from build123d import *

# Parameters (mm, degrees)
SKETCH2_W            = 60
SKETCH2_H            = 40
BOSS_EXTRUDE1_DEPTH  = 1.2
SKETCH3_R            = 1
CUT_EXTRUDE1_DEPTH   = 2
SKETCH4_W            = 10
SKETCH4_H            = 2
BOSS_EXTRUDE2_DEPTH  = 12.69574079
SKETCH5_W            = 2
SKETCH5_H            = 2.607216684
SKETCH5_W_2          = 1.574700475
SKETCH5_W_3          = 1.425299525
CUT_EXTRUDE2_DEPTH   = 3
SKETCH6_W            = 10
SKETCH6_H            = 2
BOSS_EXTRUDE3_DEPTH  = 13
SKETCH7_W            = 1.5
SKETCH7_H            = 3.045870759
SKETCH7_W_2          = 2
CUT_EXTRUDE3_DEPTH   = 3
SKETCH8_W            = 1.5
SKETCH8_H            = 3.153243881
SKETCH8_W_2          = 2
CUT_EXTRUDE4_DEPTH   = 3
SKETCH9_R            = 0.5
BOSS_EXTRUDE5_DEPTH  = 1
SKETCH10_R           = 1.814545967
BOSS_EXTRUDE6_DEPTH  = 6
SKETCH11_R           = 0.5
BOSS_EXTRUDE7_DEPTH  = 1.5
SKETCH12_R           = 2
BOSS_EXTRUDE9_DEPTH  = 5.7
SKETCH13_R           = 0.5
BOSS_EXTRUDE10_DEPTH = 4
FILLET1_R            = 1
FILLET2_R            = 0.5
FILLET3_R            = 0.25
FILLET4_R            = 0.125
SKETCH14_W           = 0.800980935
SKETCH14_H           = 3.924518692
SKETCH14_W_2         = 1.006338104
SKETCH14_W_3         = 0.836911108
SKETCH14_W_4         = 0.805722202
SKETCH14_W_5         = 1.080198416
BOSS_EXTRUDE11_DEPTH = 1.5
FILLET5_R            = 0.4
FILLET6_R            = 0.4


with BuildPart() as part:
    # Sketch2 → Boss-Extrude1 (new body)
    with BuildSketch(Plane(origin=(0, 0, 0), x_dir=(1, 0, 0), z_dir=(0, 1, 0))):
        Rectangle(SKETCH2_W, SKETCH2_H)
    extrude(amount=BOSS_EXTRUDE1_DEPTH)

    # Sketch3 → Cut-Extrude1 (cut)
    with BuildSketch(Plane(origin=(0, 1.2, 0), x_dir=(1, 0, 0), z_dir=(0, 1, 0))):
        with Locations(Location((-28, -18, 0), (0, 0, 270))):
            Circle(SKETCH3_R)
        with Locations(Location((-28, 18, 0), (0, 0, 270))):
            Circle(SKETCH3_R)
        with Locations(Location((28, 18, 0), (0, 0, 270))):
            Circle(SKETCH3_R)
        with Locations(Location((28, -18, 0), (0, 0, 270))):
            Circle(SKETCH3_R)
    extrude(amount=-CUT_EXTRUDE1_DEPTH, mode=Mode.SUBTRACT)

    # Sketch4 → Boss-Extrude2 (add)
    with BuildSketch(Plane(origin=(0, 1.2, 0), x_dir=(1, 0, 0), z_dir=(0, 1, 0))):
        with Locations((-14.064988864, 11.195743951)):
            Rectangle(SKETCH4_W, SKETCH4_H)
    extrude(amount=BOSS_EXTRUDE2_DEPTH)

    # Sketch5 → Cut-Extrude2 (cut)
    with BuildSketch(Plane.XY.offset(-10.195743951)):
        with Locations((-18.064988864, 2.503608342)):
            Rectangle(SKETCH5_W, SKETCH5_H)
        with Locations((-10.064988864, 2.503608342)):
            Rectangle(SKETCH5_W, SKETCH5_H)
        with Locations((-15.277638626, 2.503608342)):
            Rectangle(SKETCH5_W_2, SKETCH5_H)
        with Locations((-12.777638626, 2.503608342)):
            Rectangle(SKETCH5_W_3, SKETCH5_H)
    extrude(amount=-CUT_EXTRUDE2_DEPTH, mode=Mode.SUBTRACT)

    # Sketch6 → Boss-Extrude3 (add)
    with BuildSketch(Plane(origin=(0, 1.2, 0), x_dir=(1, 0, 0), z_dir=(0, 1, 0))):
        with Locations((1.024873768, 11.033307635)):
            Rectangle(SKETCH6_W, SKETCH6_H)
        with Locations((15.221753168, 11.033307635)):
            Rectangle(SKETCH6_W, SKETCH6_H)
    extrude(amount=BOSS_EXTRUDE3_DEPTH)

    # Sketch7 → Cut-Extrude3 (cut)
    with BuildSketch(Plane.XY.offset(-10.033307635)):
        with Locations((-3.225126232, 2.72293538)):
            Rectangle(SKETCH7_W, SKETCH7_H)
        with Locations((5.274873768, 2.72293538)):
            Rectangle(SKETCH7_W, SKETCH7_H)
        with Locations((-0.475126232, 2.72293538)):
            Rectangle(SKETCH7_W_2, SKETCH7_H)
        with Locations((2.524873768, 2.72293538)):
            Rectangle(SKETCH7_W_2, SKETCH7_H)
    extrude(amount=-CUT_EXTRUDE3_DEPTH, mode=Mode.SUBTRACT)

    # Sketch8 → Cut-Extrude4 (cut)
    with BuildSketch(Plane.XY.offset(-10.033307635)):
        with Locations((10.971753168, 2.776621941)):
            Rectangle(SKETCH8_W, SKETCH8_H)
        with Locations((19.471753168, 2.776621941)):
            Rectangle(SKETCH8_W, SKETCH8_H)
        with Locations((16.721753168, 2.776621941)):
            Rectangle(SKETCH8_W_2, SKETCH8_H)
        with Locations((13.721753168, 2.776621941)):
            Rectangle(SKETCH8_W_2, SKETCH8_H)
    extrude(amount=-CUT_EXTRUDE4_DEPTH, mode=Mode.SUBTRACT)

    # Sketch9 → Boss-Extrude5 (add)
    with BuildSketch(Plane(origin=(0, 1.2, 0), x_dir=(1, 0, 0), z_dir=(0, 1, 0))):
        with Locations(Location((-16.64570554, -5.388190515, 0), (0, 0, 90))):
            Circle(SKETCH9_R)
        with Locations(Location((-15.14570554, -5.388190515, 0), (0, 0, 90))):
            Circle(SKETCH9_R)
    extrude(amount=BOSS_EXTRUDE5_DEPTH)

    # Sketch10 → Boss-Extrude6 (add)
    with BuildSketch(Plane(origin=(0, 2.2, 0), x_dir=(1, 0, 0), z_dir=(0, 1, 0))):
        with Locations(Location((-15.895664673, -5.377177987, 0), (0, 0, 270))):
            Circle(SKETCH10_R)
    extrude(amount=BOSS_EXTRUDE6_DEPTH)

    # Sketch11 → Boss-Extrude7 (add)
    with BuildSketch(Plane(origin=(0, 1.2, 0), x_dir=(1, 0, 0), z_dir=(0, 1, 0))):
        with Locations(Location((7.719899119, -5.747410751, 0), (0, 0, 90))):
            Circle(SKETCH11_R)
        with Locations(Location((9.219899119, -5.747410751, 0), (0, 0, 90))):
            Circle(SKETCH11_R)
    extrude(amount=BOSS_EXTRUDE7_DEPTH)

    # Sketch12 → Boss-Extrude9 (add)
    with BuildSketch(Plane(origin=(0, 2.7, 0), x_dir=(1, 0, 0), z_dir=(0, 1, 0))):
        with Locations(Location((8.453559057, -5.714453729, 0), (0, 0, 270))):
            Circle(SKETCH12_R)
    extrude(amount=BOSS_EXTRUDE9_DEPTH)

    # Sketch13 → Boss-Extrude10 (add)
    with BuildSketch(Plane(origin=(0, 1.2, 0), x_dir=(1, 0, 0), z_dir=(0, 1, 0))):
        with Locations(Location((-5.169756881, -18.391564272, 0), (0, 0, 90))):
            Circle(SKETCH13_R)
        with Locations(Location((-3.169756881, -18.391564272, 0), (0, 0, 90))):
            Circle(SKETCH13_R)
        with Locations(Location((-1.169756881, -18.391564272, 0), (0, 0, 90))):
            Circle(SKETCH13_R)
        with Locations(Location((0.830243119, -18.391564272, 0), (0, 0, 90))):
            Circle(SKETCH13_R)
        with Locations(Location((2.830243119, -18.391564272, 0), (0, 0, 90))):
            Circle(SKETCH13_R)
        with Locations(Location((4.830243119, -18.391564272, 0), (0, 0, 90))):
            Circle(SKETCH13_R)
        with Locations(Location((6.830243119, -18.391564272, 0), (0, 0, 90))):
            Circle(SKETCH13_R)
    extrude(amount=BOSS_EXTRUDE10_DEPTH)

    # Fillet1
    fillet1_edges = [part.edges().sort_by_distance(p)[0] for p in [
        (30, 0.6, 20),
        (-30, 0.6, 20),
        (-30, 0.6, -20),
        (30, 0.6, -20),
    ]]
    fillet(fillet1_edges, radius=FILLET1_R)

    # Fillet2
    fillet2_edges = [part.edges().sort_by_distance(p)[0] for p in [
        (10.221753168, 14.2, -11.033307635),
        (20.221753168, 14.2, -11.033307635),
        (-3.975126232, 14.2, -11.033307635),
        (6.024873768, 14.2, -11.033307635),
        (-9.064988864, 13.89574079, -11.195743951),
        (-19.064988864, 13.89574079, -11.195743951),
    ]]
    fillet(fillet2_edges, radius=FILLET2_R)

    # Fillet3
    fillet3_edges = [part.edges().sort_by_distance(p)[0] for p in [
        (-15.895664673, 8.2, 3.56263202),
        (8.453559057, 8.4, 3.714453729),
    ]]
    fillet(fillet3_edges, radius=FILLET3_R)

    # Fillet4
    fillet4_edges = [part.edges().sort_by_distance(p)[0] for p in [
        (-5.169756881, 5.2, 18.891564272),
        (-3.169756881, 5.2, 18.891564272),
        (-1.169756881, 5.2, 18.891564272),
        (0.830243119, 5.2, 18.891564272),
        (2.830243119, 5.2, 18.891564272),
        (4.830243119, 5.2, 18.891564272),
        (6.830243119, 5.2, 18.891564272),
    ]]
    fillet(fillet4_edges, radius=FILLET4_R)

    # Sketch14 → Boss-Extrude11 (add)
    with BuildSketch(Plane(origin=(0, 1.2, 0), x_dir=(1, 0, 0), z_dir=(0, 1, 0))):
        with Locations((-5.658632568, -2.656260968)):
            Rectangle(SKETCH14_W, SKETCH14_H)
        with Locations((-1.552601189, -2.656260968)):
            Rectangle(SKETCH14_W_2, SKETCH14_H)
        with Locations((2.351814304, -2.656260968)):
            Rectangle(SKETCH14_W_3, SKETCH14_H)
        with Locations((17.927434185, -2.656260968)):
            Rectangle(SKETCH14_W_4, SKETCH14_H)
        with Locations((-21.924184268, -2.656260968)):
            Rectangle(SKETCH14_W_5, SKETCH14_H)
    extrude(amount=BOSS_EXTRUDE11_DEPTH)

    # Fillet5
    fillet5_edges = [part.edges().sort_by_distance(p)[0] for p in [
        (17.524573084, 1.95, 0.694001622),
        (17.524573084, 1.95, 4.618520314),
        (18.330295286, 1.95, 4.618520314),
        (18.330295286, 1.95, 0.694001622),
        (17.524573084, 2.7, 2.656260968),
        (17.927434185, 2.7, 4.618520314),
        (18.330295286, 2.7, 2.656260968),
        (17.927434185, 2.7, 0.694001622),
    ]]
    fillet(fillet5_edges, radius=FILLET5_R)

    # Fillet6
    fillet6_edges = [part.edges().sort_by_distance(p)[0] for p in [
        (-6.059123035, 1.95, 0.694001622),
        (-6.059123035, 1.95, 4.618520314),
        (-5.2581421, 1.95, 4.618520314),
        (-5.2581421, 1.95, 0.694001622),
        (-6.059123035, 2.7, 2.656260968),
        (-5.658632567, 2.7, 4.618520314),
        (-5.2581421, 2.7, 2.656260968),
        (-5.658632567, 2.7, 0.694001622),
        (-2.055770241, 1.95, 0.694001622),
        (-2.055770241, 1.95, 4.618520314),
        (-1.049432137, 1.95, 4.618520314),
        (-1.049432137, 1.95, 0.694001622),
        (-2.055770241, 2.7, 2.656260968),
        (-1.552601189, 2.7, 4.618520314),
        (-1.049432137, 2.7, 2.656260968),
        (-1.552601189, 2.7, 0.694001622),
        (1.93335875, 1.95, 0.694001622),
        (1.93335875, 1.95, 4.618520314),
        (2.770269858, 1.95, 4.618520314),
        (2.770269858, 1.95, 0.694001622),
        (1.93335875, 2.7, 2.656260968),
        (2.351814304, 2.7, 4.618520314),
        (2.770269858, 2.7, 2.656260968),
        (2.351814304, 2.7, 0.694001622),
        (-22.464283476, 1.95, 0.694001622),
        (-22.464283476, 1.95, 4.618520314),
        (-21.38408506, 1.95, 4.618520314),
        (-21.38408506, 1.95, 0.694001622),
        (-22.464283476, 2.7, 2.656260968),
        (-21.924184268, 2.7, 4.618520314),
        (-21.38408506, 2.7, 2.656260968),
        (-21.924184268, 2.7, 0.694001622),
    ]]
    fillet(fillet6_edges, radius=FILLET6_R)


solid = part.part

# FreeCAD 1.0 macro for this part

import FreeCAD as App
import Part
import Sketcher
from FreeCAD import Vector


def edges_at(feature, points):
    """Names of the edges that pass closest to the given points."""
    edges = feature.Shape.Edges
    near = lambda p: min(range(len(edges)), key=lambda i: edges[i].distToShape(Part.Vertex(*p))[0])
    return sorted({f"Edge{near(p) + 1}" for p in points})

doc = App.newDocument("Part")
body = doc.addObject("PartDesign::Body", "Body")

sketch1 = body.newObject("Sketcher::SketchObject", "Sketch")
sketch1.AttachmentSupport = (doc.getObject("XZ_Plane"), [""])
sketch1.MapMode = "FlatFace"
sketch1.addGeometry(Part.LineSegment(Vector(-30, -20, 0), Vector(-30, 20, 0)), False)
sketch1.addGeometry(Part.LineSegment(Vector(-30, 20, 0), Vector(30, 20, 0)), False)
sketch1.addGeometry(Part.LineSegment(Vector(30, 20, 0), Vector(30, -20, 0)), False)
sketch1.addGeometry(Part.LineSegment(Vector(30, -20, 0), Vector(-30, -20, 0)), False)
sketch1.addConstraint(Sketcher.Constraint("Coincident", 0, 2, 1, 1))
sketch1.addConstraint(Sketcher.Constraint("Coincident", 1, 2, 2, 1))
sketch1.addConstraint(Sketcher.Constraint("Coincident", 2, 2, 3, 1))
sketch1.addConstraint(Sketcher.Constraint("Coincident", 3, 2, 0, 1))
sketch1.addConstraint(Sketcher.Constraint("Vertical", 0))
sketch1.addConstraint(Sketcher.Constraint("Horizontal", 1))
sketch1.addConstraint(Sketcher.Constraint("Vertical", 2))
sketch1.addConstraint(Sketcher.Constraint("Horizontal", 3))
sketch1.addConstraint(Sketcher.Constraint("Symmetric", 0, 2, 2, 2, -1, 1))
sketch1.addConstraint(Sketcher.Constraint("DistanceX", 1, 1, 1, 2, 60.0))
sketch1.addConstraint(Sketcher.Constraint("DistanceY", 0, 1, 0, 2, 40.0))
pad1 = body.newObject("PartDesign::Pad", "Pad")
pad1.Profile = sketch1
pad1.Length = 1.2
pad1.Reversed = True

sketch2 = body.newObject("Sketcher::SketchObject", "Sketch001")
sketch2.AttachmentSupport = (doc.getObject("XZ_Plane"), [""])
sketch2.MapMode = "FlatFace"
sketch2.AttachmentOffset = App.Placement(Vector(0, 0, -1.2), App.Rotation())
sketch2.addGeometry(Part.Circle(Vector(-28, 18, 0), Vector(0, 0, 1), 1), False)
sketch2.addGeometry(Part.Circle(Vector(-28, -18, 0), Vector(0, 0, 1), 1), False)
sketch2.addGeometry(Part.Circle(Vector(28, -18, 0), Vector(0, 0, 1), 1), False)
sketch2.addGeometry(Part.Circle(Vector(28, 18, 0), Vector(0, 0, 1), 1), False)
sketch2.addConstraint(Sketcher.Constraint("Equal", 0, 1))
sketch2.addConstraint(Sketcher.Constraint("Equal", 1, 2))
sketch2.addConstraint(Sketcher.Constraint("Equal", 2, 3))
sketch2.addConstraint(Sketcher.Constraint("Symmetric", 0, 3, 2, 3, -1, 1))
sketch2.addConstraint(Sketcher.Constraint("Symmetric", 1, 3, 3, 3, -1, 1))
sketch2.addConstraint(Sketcher.Constraint("Symmetric", 1, 3, 2, 3, -2))
sketch2.addConstraint(Sketcher.Constraint("Diameter", 0, 2.0))
sketch2.addConstraint(Sketcher.Constraint("DistanceX", 0, 3, -1, 1, 28.0))
sketch2.addConstraint(Sketcher.Constraint("DistanceY", -1, 1, 0, 3, 18.0))
pocket1 = body.newObject("PartDesign::Pocket", "Pocket")
pocket1.Profile = sketch2
pocket1.Length = 2
pocket1.Reversed = True

sketch3 = body.newObject("Sketcher::SketchObject", "Sketch002")
sketch3.AttachmentSupport = (doc.getObject("XZ_Plane"), [""])
sketch3.MapMode = "FlatFace"
sketch3.AttachmentOffset = App.Placement(Vector(0, 0, -1.2), App.Rotation())
sketch3.addGeometry(Part.LineSegment(Vector(-19.064989, -12.195744, 0), Vector(-19.064989, -10.195744, 0)), False)
sketch3.addGeometry(Part.LineSegment(Vector(-19.064989, -10.195744, 0), Vector(-9.064989, -10.195744, 0)), False)
sketch3.addGeometry(Part.LineSegment(Vector(-9.064989, -10.195744, 0), Vector(-9.064989, -12.195744, 0)), False)
sketch3.addGeometry(Part.LineSegment(Vector(-9.064989, -12.195744, 0), Vector(-19.064989, -12.195744, 0)), False)
sketch3.addConstraint(Sketcher.Constraint("Coincident", 0, 2, 1, 1))
sketch3.addConstraint(Sketcher.Constraint("Coincident", 1, 2, 2, 1))
sketch3.addConstraint(Sketcher.Constraint("Coincident", 2, 2, 3, 1))
sketch3.addConstraint(Sketcher.Constraint("Coincident", 3, 2, 0, 1))
sketch3.addConstraint(Sketcher.Constraint("Vertical", 0))
sketch3.addConstraint(Sketcher.Constraint("Horizontal", 1))
sketch3.addConstraint(Sketcher.Constraint("Vertical", 2))
sketch3.addConstraint(Sketcher.Constraint("Horizontal", 3))
sketch3.addConstraint(Sketcher.Constraint("DistanceX", 1, 1, 1, 2, 10.0))
sketch3.addConstraint(Sketcher.Constraint("DistanceY", 0, 1, 0, 2, 2.0))
sketch3.addConstraint(Sketcher.Constraint("DistanceX", 0, 2, -1, 1, 19.064989))
sketch3.addConstraint(Sketcher.Constraint("DistanceY", 0, 2, -1, 1, 10.195744))
pad2 = body.newObject("PartDesign::Pad", "Pad001")
pad2.Profile = sketch3
pad2.Length = 12.695741
pad2.Reversed = True

sketch4 = body.newObject("Sketcher::SketchObject", "Sketch003")
sketch4.AttachmentSupport = (doc.getObject("XY_Plane"), [""])
sketch4.MapMode = "FlatFace"
sketch4.AttachmentOffset = App.Placement(Vector(0, 0, -10.195744), App.Rotation())
sketch4.addGeometry(Part.LineSegment(Vector(-19.064989, 3.807217, 0), Vector(-19.064989, 1.2, 0)), False)
sketch4.addGeometry(Part.LineSegment(Vector(-19.064989, 1.2, 0), Vector(-17.064989, 1.2, 0)), False)
sketch4.addGeometry(Part.LineSegment(Vector(-17.064989, 1.2, 0), Vector(-17.064989, 3.807217, 0)), False)
sketch4.addGeometry(Part.LineSegment(Vector(-17.064989, 3.807217, 0), Vector(-19.064989, 3.807217, 0)), False)
sketch4.addGeometry(Part.LineSegment(Vector(-11.064989, 3.807217, 0), Vector(-11.064989, 1.2, 0)), False)
sketch4.addGeometry(Part.LineSegment(Vector(-11.064989, 1.2, 0), Vector(-9.064989, 1.2, 0)), False)
sketch4.addGeometry(Part.LineSegment(Vector(-9.064989, 1.2, 0), Vector(-9.064989, 3.807217, 0)), False)
sketch4.addGeometry(Part.LineSegment(Vector(-9.064989, 3.807217, 0), Vector(-11.064989, 3.807217, 0)), False)
sketch4.addGeometry(Part.LineSegment(Vector(-16.064989, 3.807217, 0), Vector(-16.064989, 1.2, 0)), False)
sketch4.addGeometry(Part.LineSegment(Vector(-16.064989, 1.2, 0), Vector(-14.490288, 1.2, 0)), False)
sketch4.addGeometry(Part.LineSegment(Vector(-14.490288, 1.2, 0), Vector(-14.490288, 3.807217, 0)), False)
sketch4.addGeometry(Part.LineSegment(Vector(-14.490288, 3.807217, 0), Vector(-16.064989, 3.807217, 0)), False)
sketch4.addGeometry(Part.LineSegment(Vector(-13.490288, 3.807217, 0), Vector(-13.490288, 1.2, 0)), False)
sketch4.addGeometry(Part.LineSegment(Vector(-13.490288, 1.2, 0), Vector(-12.064989, 1.2, 0)), False)
sketch4.addGeometry(Part.LineSegment(Vector(-12.064989, 1.2, 0), Vector(-12.064989, 3.807217, 0)), False)
sketch4.addGeometry(Part.LineSegment(Vector(-12.064989, 3.807217, 0), Vector(-13.490288, 3.807217, 0)), False)
sketch4.addConstraint(Sketcher.Constraint("Coincident", 0, 2, 1, 1))
sketch4.addConstraint(Sketcher.Constraint("Coincident", 1, 2, 2, 1))
sketch4.addConstraint(Sketcher.Constraint("Coincident", 2, 2, 3, 1))
sketch4.addConstraint(Sketcher.Constraint("Coincident", 3, 2, 0, 1))
sketch4.addConstraint(Sketcher.Constraint("Coincident", 4, 2, 5, 1))
sketch4.addConstraint(Sketcher.Constraint("Coincident", 5, 2, 6, 1))
sketch4.addConstraint(Sketcher.Constraint("Coincident", 6, 2, 7, 1))
sketch4.addConstraint(Sketcher.Constraint("Coincident", 7, 2, 4, 1))
sketch4.addConstraint(Sketcher.Constraint("Coincident", 8, 2, 9, 1))
sketch4.addConstraint(Sketcher.Constraint("Coincident", 9, 2, 10, 1))
sketch4.addConstraint(Sketcher.Constraint("Coincident", 10, 2, 11, 1))
sketch4.addConstraint(Sketcher.Constraint("Coincident", 11, 2, 8, 1))
sketch4.addConstraint(Sketcher.Constraint("Coincident", 12, 2, 13, 1))
sketch4.addConstraint(Sketcher.Constraint("Coincident", 13, 2, 14, 1))
sketch4.addConstraint(Sketcher.Constraint("Coincident", 14, 2, 15, 1))
sketch4.addConstraint(Sketcher.Constraint("Coincident", 15, 2, 12, 1))
sketch4.addConstraint(Sketcher.Constraint("Vertical", 0))
sketch4.addConstraint(Sketcher.Constraint("Horizontal", 1))
sketch4.addConstraint(Sketcher.Constraint("Vertical", 2))
sketch4.addConstraint(Sketcher.Constraint("Horizontal", 3))
sketch4.addConstraint(Sketcher.Constraint("Vertical", 4))
sketch4.addConstraint(Sketcher.Constraint("Horizontal", 5))
sketch4.addConstraint(Sketcher.Constraint("Vertical", 6))
sketch4.addConstraint(Sketcher.Constraint("Horizontal", 7))
sketch4.addConstraint(Sketcher.Constraint("Vertical", 8))
sketch4.addConstraint(Sketcher.Constraint("Horizontal", 9))
sketch4.addConstraint(Sketcher.Constraint("Vertical", 10))
sketch4.addConstraint(Sketcher.Constraint("Horizontal", 11))
sketch4.addConstraint(Sketcher.Constraint("Vertical", 12))
sketch4.addConstraint(Sketcher.Constraint("Horizontal", 13))
sketch4.addConstraint(Sketcher.Constraint("Vertical", 14))
sketch4.addConstraint(Sketcher.Constraint("Horizontal", 15))
sketch4.addConstraint(Sketcher.Constraint("Horizontal", 1, 2, 4, 2))
sketch4.addConstraint(Sketcher.Constraint("Horizontal", 3, 2, 6, 2))
sketch4.addConstraint(Sketcher.Constraint("Horizontal", 5, 2, 8, 2))
sketch4.addConstraint(Sketcher.Constraint("Horizontal", 7, 2, 10, 2))
sketch4.addConstraint(Sketcher.Constraint("Horizontal", 9, 2, 12, 2))
sketch4.addConstraint(Sketcher.Constraint("Horizontal", 11, 2, 14, 2))
sketch4.addConstraint(Sketcher.Constraint("Equal", 3, 5))
sketch4.addConstraint(Sketcher.Constraint("DistanceX", 1, 1, 1, 2, 2.0))
sketch4.addConstraint(Sketcher.Constraint("DistanceX", 1, 2, 4, 2, 6.0))
sketch4.addConstraint(Sketcher.Constraint("DistanceX", 1, 2, 8, 2, 1.0))
sketch4.addConstraint(Sketcher.Constraint("DistanceX", 9, 2, 12, 2, 1.0))
sketch4.addConstraint(Sketcher.Constraint("DistanceX", 13, 2, 4, 2, 1.0))
sketch4.addConstraint(Sketcher.Constraint("DistanceY", -1, 1, 0, 2, 1.2))
sketch4.addConstraint(Sketcher.Constraint("DistanceX", 9, 1, 9, 2, 1.5747))
sketch4.addConstraint(Sketcher.Constraint("DistanceY", 0, 2, 0, 1, 2.607217))
sketch4.addConstraint(Sketcher.Constraint("DistanceX", 0, 2, -1, 1, 19.064989))
pocket2 = body.newObject("PartDesign::Pocket", "Pocket001")
pocket2.Profile = sketch4
pocket2.Length = 3

sketch5 = body.newObject("Sketcher::SketchObject", "Sketch004")
sketch5.AttachmentSupport = (doc.getObject("XZ_Plane"), [""])
sketch5.MapMode = "FlatFace"
sketch5.AttachmentOffset = App.Placement(Vector(0, 0, -1.2), App.Rotation())
sketch5.addGeometry(Part.LineSegment(Vector(-3.975126, -12.033308, 0), Vector(-3.975126, -10.033308, 0)), False)
sketch5.addGeometry(Part.LineSegment(Vector(-3.975126, -10.033308, 0), Vector(6.024874, -10.033308, 0)), False)
sketch5.addGeometry(Part.LineSegment(Vector(6.024874, -10.033308, 0), Vector(6.024874, -12.033308, 0)), False)
sketch5.addGeometry(Part.LineSegment(Vector(6.024874, -12.033308, 0), Vector(-3.975126, -12.033308, 0)), False)
sketch5.addGeometry(Part.LineSegment(Vector(10.221753, -12.033308, 0), Vector(10.221753, -10.033308, 0)), False)
sketch5.addGeometry(Part.LineSegment(Vector(10.221753, -10.033308, 0), Vector(20.221753, -10.033308, 0)), False)
sketch5.addGeometry(Part.LineSegment(Vector(20.221753, -10.033308, 0), Vector(20.221753, -12.033308, 0)), False)
sketch5.addGeometry(Part.LineSegment(Vector(20.221753, -12.033308, 0), Vector(10.221753, -12.033308, 0)), False)
sketch5.addConstraint(Sketcher.Constraint("Coincident", 0, 2, 1, 1))
sketch5.addConstraint(Sketcher.Constraint("Coincident", 1, 2, 2, 1))
sketch5.addConstraint(Sketcher.Constraint("Coincident", 2, 2, 3, 1))
sketch5.addConstraint(Sketcher.Constraint("Coincident", 3, 2, 0, 1))
sketch5.addConstraint(Sketcher.Constraint("Coincident", 4, 2, 5, 1))
sketch5.addConstraint(Sketcher.Constraint("Coincident", 5, 2, 6, 1))
sketch5.addConstraint(Sketcher.Constraint("Coincident", 6, 2, 7, 1))
sketch5.addConstraint(Sketcher.Constraint("Coincident", 7, 2, 4, 1))
sketch5.addConstraint(Sketcher.Constraint("Vertical", 0))
sketch5.addConstraint(Sketcher.Constraint("Horizontal", 1))
sketch5.addConstraint(Sketcher.Constraint("Vertical", 2))
sketch5.addConstraint(Sketcher.Constraint("Horizontal", 3))
sketch5.addConstraint(Sketcher.Constraint("Vertical", 4))
sketch5.addConstraint(Sketcher.Constraint("Horizontal", 5))
sketch5.addConstraint(Sketcher.Constraint("Vertical", 6))
sketch5.addConstraint(Sketcher.Constraint("Horizontal", 7))
sketch5.addConstraint(Sketcher.Constraint("Horizontal", 1, 2, 4, 2))
sketch5.addConstraint(Sketcher.Constraint("Horizontal", 3, 2, 6, 2))
sketch5.addConstraint(Sketcher.Constraint("Equal", 3, 5))
sketch5.addConstraint(Sketcher.Constraint("DistanceX", 1, 1, 1, 2, 10.0))
sketch5.addConstraint(Sketcher.Constraint("DistanceY", 0, 1, 0, 2, 2.0))
sketch5.addConstraint(Sketcher.Constraint("DistanceX", 1, 2, 4, 2, 4.196879))
sketch5.addConstraint(Sketcher.Constraint("DistanceX", 0, 2, -1, 1, 3.975126))
sketch5.addConstraint(Sketcher.Constraint("DistanceY", 0, 2, -1, 1, 10.033308))
pad3 = body.newObject("PartDesign::Pad", "Pad002")
pad3.Profile = sketch5
pad3.Length = 13
pad3.Reversed = True

sketch6 = body.newObject("Sketcher::SketchObject", "Sketch005")
sketch6.AttachmentSupport = (doc.getObject("XY_Plane"), [""])
sketch6.MapMode = "FlatFace"
sketch6.AttachmentOffset = App.Placement(Vector(0, 0, -10.033308), App.Rotation())
sketch6.addGeometry(Part.LineSegment(Vector(-3.975126, 4.245871, 0), Vector(-3.975126, 1.2, 0)), False)
sketch6.addGeometry(Part.LineSegment(Vector(-3.975126, 1.2, 0), Vector(-2.475126, 1.2, 0)), False)
sketch6.addGeometry(Part.LineSegment(Vector(-2.475126, 1.2, 0), Vector(-2.475126, 4.245871, 0)), False)
sketch6.addGeometry(Part.LineSegment(Vector(-2.475126, 4.245871, 0), Vector(-3.975126, 4.245871, 0)), False)
sketch6.addGeometry(Part.LineSegment(Vector(4.524874, 4.245871, 0), Vector(4.524874, 1.2, 0)), False)
sketch6.addGeometry(Part.LineSegment(Vector(4.524874, 1.2, 0), Vector(6.024874, 1.2, 0)), False)
sketch6.addGeometry(Part.LineSegment(Vector(6.024874, 1.2, 0), Vector(6.024874, 4.245871, 0)), False)
sketch6.addGeometry(Part.LineSegment(Vector(6.024874, 4.245871, 0), Vector(4.524874, 4.245871, 0)), False)
sketch6.addGeometry(Part.LineSegment(Vector(-1.475126, 4.245871, 0), Vector(-1.475126, 1.2, 0)), False)
sketch6.addGeometry(Part.LineSegment(Vector(-1.475126, 1.2, 0), Vector(0.524874, 1.2, 0)), False)
sketch6.addGeometry(Part.LineSegment(Vector(0.524874, 1.2, 0), Vector(0.524874, 4.245871, 0)), False)
sketch6.addGeometry(Part.LineSegment(Vector(0.524874, 4.245871, 0), Vector(-1.475126, 4.245871, 0)), False)
sketch6.addGeometry(Part.LineSegment(Vector(1.524874, 4.245871, 0), Vector(1.524874, 1.2, 0)), False)
sketch6.addGeometry(Part.LineSegment(Vector(1.524874, 1.2, 0), Vector(3.524874, 1.2, 0)), False)
sketch6.addGeometry(Part.LineSegment(Vector(3.524874, 1.2, 0), Vector(3.524874, 4.245871, 0)), False)
sketch6.addGeometry(Part.LineSegment(Vector(3.524874, 4.245871, 0), Vector(1.524874, 4.245871, 0)), False)
sketch6.addConstraint(Sketcher.Constraint("Coincident", 0, 2, 1, 1))
sketch6.addConstraint(Sketcher.Constraint("Coincident", 1, 2, 2, 1))
sketch6.addConstraint(Sketcher.Constraint("Coincident", 2, 2, 3, 1))
sketch6.addConstraint(Sketcher.Constraint("Coincident", 3, 2, 0, 1))
sketch6.addConstraint(Sketcher.Constraint("Coincident", 4, 2, 5, 1))
sketch6.addConstraint(Sketcher.Constraint("Coincident", 5, 2, 6, 1))
sketch6.addConstraint(Sketcher.Constraint("Coincident", 6, 2, 7, 1))
sketch6.addConstraint(Sketcher.Constraint("Coincident", 7, 2, 4, 1))
sketch6.addConstraint(Sketcher.Constraint("Coincident", 8, 2, 9, 1))
sketch6.addConstraint(Sketcher.Constraint("Coincident", 9, 2, 10, 1))
sketch6.addConstraint(Sketcher.Constraint("Coincident", 10, 2, 11, 1))
sketch6.addConstraint(Sketcher.Constraint("Coincident", 11, 2, 8, 1))
sketch6.addConstraint(Sketcher.Constraint("Coincident", 12, 2, 13, 1))
sketch6.addConstraint(Sketcher.Constraint("Coincident", 13, 2, 14, 1))
sketch6.addConstraint(Sketcher.Constraint("Coincident", 14, 2, 15, 1))
sketch6.addConstraint(Sketcher.Constraint("Coincident", 15, 2, 12, 1))
sketch6.addConstraint(Sketcher.Constraint("Vertical", 0))
sketch6.addConstraint(Sketcher.Constraint("Horizontal", 1))
sketch6.addConstraint(Sketcher.Constraint("Vertical", 2))
sketch6.addConstraint(Sketcher.Constraint("Horizontal", 3))
sketch6.addConstraint(Sketcher.Constraint("Vertical", 4))
sketch6.addConstraint(Sketcher.Constraint("Horizontal", 5))
sketch6.addConstraint(Sketcher.Constraint("Vertical", 6))
sketch6.addConstraint(Sketcher.Constraint("Horizontal", 7))
sketch6.addConstraint(Sketcher.Constraint("Vertical", 8))
sketch6.addConstraint(Sketcher.Constraint("Horizontal", 9))
sketch6.addConstraint(Sketcher.Constraint("Vertical", 10))
sketch6.addConstraint(Sketcher.Constraint("Horizontal", 11))
sketch6.addConstraint(Sketcher.Constraint("Vertical", 12))
sketch6.addConstraint(Sketcher.Constraint("Horizontal", 13))
sketch6.addConstraint(Sketcher.Constraint("Vertical", 14))
sketch6.addConstraint(Sketcher.Constraint("Horizontal", 15))
sketch6.addConstraint(Sketcher.Constraint("Horizontal", 1, 2, 4, 2))
sketch6.addConstraint(Sketcher.Constraint("Horizontal", 3, 2, 6, 2))
sketch6.addConstraint(Sketcher.Constraint("Horizontal", 5, 2, 8, 2))
sketch6.addConstraint(Sketcher.Constraint("Horizontal", 7, 2, 10, 2))
sketch6.addConstraint(Sketcher.Constraint("Horizontal", 9, 2, 12, 2))
sketch6.addConstraint(Sketcher.Constraint("Horizontal", 11, 2, 14, 2))
sketch6.addConstraint(Sketcher.Constraint("Equal", 3, 5))
sketch6.addConstraint(Sketcher.Constraint("Equal", 11, 13))
sketch6.addConstraint(Sketcher.Constraint("DistanceX", 9, 1, 9, 2, 2.0))
sketch6.addConstraint(Sketcher.Constraint("DistanceX", 1, 1, 1, 2, 1.5))
sketch6.addConstraint(Sketcher.Constraint("DistanceX", 1, 2, 4, 2, 7.0))
sketch6.addConstraint(Sketcher.Constraint("DistanceX", 1, 2, 8, 2, 1.0))
sketch6.addConstraint(Sketcher.Constraint("DistanceX", 9, 2, 12, 2, 1.0))
sketch6.addConstraint(Sketcher.Constraint("DistanceY", -1, 1, 0, 2, 1.2))
sketch6.addConstraint(Sketcher.Constraint("DistanceY", 0, 2, 0, 1, 3.045871))
sketch6.addConstraint(Sketcher.Constraint("DistanceX", 0, 2, -1, 1, 3.975126))
pocket3 = body.newObject("PartDesign::Pocket", "Pocket002")
pocket3.Profile = sketch6
pocket3.Length = 3

sketch7 = body.newObject("Sketcher::SketchObject", "Sketch006")
sketch7.AttachmentSupport = (doc.getObject("XY_Plane"), [""])
sketch7.MapMode = "FlatFace"
sketch7.AttachmentOffset = App.Placement(Vector(0, 0, -10.033308), App.Rotation())
sketch7.addGeometry(Part.LineSegment(Vector(10.221753, 4.353244, 0), Vector(10.221753, 1.2, 0)), False)
sketch7.addGeometry(Part.LineSegment(Vector(10.221753, 1.2, 0), Vector(11.721753, 1.2, 0)), False)
sketch7.addGeometry(Part.LineSegment(Vector(11.721753, 1.2, 0), Vector(11.721753, 4.353244, 0)), False)
sketch7.addGeometry(Part.LineSegment(Vector(11.721753, 4.353244, 0), Vector(10.221753, 4.353244, 0)), False)
sketch7.addGeometry(Part.LineSegment(Vector(18.721753, 4.353244, 0), Vector(18.721753, 1.2, 0)), False)
sketch7.addGeometry(Part.LineSegment(Vector(18.721753, 1.2, 0), Vector(20.221753, 1.2, 0)), False)
sketch7.addGeometry(Part.LineSegment(Vector(20.221753, 1.2, 0), Vector(20.221753, 4.353244, 0)), False)
sketch7.addGeometry(Part.LineSegment(Vector(20.221753, 4.353244, 0), Vector(18.721753, 4.353244, 0)), False)
sketch7.addGeometry(Part.LineSegment(Vector(15.721753, 4.353244, 0), Vector(15.721753, 1.2, 0)), False)
sketch7.addGeometry(Part.LineSegment(Vector(15.721753, 1.2, 0), Vector(17.721753, 1.2, 0)), False)
sketch7.addGeometry(Part.LineSegment(Vector(17.721753, 1.2, 0), Vector(17.721753, 4.353244, 0)), False)
sketch7.addGeometry(Part.LineSegment(Vector(17.721753, 4.353244, 0), Vector(15.721753, 4.353244, 0)), False)
sketch7.addGeometry(Part.LineSegment(Vector(12.721753, 4.353244, 0), Vector(12.721753, 1.2, 0)), False)
sketch7.addGeometry(Part.LineSegment(Vector(12.721753, 1.2, 0), Vector(14.721753, 1.2, 0)), False)
sketch7.addGeometry(Part.LineSegment(Vector(14.721753, 1.2, 0), Vector(14.721753, 4.353244, 0)), False)
sketch7.addGeometry(Part.LineSegment(Vector(14.721753, 4.353244, 0), Vector(12.721753, 4.353244, 0)), False)
sketch7.addConstraint(Sketcher.Constraint("Coincident", 0, 2, 1, 1))
sketch7.addConstraint(Sketcher.Constraint("Coincident", 1, 2, 2, 1))
sketch7.addConstraint(Sketcher.Constraint("Coincident", 2, 2, 3, 1))
sketch7.addConstraint(Sketcher.Constraint("Coincident", 3, 2, 0, 1))
sketch7.addConstraint(Sketcher.Constraint("Coincident", 4, 2, 5, 1))
sketch7.addConstraint(Sketcher.Constraint("Coincident", 5, 2, 6, 1))
sketch7.addConstraint(Sketcher.Constraint("Coincident", 6, 2, 7, 1))
sketch7.addConstraint(Sketcher.Constraint("Coincident", 7, 2, 4, 1))
sketch7.addConstraint(Sketcher.Constraint("Coincident", 8, 2, 9, 1))
sketch7.addConstraint(Sketcher.Constraint("Coincident", 9, 2, 10, 1))
sketch7.addConstraint(Sketcher.Constraint("Coincident", 10, 2, 11, 1))
sketch7.addConstraint(Sketcher.Constraint("Coincident", 11, 2, 8, 1))
sketch7.addConstraint(Sketcher.Constraint("Coincident", 12, 2, 13, 1))
sketch7.addConstraint(Sketcher.Constraint("Coincident", 13, 2, 14, 1))
sketch7.addConstraint(Sketcher.Constraint("Coincident", 14, 2, 15, 1))
sketch7.addConstraint(Sketcher.Constraint("Coincident", 15, 2, 12, 1))
sketch7.addConstraint(Sketcher.Constraint("Vertical", 0))
sketch7.addConstraint(Sketcher.Constraint("Horizontal", 1))
sketch7.addConstraint(Sketcher.Constraint("Vertical", 2))
sketch7.addConstraint(Sketcher.Constraint("Horizontal", 3))
sketch7.addConstraint(Sketcher.Constraint("Vertical", 4))
sketch7.addConstraint(Sketcher.Constraint("Horizontal", 5))
sketch7.addConstraint(Sketcher.Constraint("Vertical", 6))
sketch7.addConstraint(Sketcher.Constraint("Horizontal", 7))
sketch7.addConstraint(Sketcher.Constraint("Vertical", 8))
sketch7.addConstraint(Sketcher.Constraint("Horizontal", 9))
sketch7.addConstraint(Sketcher.Constraint("Vertical", 10))
sketch7.addConstraint(Sketcher.Constraint("Horizontal", 11))
sketch7.addConstraint(Sketcher.Constraint("Vertical", 12))
sketch7.addConstraint(Sketcher.Constraint("Horizontal", 13))
sketch7.addConstraint(Sketcher.Constraint("Vertical", 14))
sketch7.addConstraint(Sketcher.Constraint("Horizontal", 15))
sketch7.addConstraint(Sketcher.Constraint("Horizontal", 1, 2, 4, 2))
sketch7.addConstraint(Sketcher.Constraint("Horizontal", 3, 2, 6, 2))
sketch7.addConstraint(Sketcher.Constraint("Horizontal", 5, 2, 8, 2))
sketch7.addConstraint(Sketcher.Constraint("Horizontal", 7, 2, 10, 2))
sketch7.addConstraint(Sketcher.Constraint("Horizontal", 9, 2, 12, 2))
sketch7.addConstraint(Sketcher.Constraint("Horizontal", 11, 2, 14, 2))
sketch7.addConstraint(Sketcher.Constraint("Equal", 3, 5))
sketch7.addConstraint(Sketcher.Constraint("Equal", 11, 13))
sketch7.addConstraint(Sketcher.Constraint("DistanceX", 9, 1, 9, 2, 2.0))
sketch7.addConstraint(Sketcher.Constraint("DistanceX", 1, 1, 1, 2, 1.5))
sketch7.addConstraint(Sketcher.Constraint("DistanceX", 1, 2, 4, 2, 7.0))
sketch7.addConstraint(Sketcher.Constraint("DistanceX", 8, 2, 4, 2, 3.0))
sketch7.addConstraint(Sketcher.Constraint("DistanceX", 1, 2, 12, 2, 1.0))
sketch7.addConstraint(Sketcher.Constraint("DistanceY", -1, 1, 0, 2, 1.2))
sketch7.addConstraint(Sketcher.Constraint("DistanceY", 0, 2, 0, 1, 3.153244))
sketch7.addConstraint(Sketcher.Constraint("DistanceX", -1, 1, 0, 2, 10.221753))
pocket4 = body.newObject("PartDesign::Pocket", "Pocket003")
pocket4.Profile = sketch7
pocket4.Length = 3

sketch8 = body.newObject("Sketcher::SketchObject", "Sketch007")
sketch8.AttachmentSupport = (doc.getObject("XZ_Plane"), [""])
sketch8.MapMode = "FlatFace"
sketch8.AttachmentOffset = App.Placement(Vector(0, 0, -1.2), App.Rotation())
sketch8.addGeometry(Part.Circle(Vector(-16.645706, 5.388191, 0), Vector(0, 0, 1), 0.5), False)
sketch8.addGeometry(Part.Circle(Vector(-15.145706, 5.388191, 0), Vector(0, 0, 1), 0.5), False)
sketch8.addConstraint(Sketcher.Constraint("Equal", 0, 1))
sketch8.addConstraint(Sketcher.Constraint("Horizontal", 0, 3, 1, 3))
sketch8.addConstraint(Sketcher.Constraint("Diameter", 0, 1.0))
sketch8.addConstraint(Sketcher.Constraint("DistanceX", 0, 3, 1, 3, 1.5))
sketch8.addConstraint(Sketcher.Constraint("DistanceY", -1, 1, 0, 3, 5.388191))
sketch8.addConstraint(Sketcher.Constraint("DistanceX", 0, 3, -1, 1, 16.645706))
pad4 = body.newObject("PartDesign::Pad", "Pad003")
pad4.Profile = sketch8
pad4.Length = 1
pad4.Reversed = True

sketch9 = body.newObject("Sketcher::SketchObject", "Sketch008")
sketch9.AttachmentSupport = (doc.getObject("XZ_Plane"), [""])
sketch9.MapMode = "FlatFace"
sketch9.AttachmentOffset = App.Placement(Vector(0, 0, -2.2), App.Rotation())
sketch9.addGeometry(Part.Circle(Vector(-15.895665, 5.377178, 0), Vector(0, 0, 1), 1.814546), False)
sketch9.addConstraint(Sketcher.Constraint("Diameter", 0, 3.629092))
sketch9.addConstraint(Sketcher.Constraint("DistanceX", 0, 3, -1, 1, 15.895665))
sketch9.addConstraint(Sketcher.Constraint("DistanceY", -1, 1, 0, 3, 5.377178))
pad5 = body.newObject("PartDesign::Pad", "Pad004")
pad5.Profile = sketch9
pad5.Length = 6
pad5.Reversed = True

sketch10 = body.newObject("Sketcher::SketchObject", "Sketch009")
sketch10.AttachmentSupport = (doc.getObject("XZ_Plane"), [""])
sketch10.MapMode = "FlatFace"
sketch10.AttachmentOffset = App.Placement(Vector(0, 0, -1.2), App.Rotation())
sketch10.addGeometry(Part.Circle(Vector(7.719899, 5.747411, 0), Vector(0, 0, 1), 0.5), False)
sketch10.addGeometry(Part.Circle(Vector(9.219899, 5.747411, 0), Vector(0, 0, 1), 0.5), False)
sketch10.addConstraint(Sketcher.Constraint("Equal", 0, 1))
sketch10.addConstraint(Sketcher.Constraint("Horizontal", 0, 3, 1, 3))
sketch10.addConstraint(Sketcher.Constraint("Diameter", 0, 1.0))
sketch10.addConstraint(Sketcher.Constraint("DistanceX", 0, 3, 1, 3, 1.5))
sketch10.addConstraint(Sketcher.Constraint("DistanceX", -1, 1, 0, 3, 7.719899))
sketch10.addConstraint(Sketcher.Constraint("DistanceY", -1, 1, 0, 3, 5.747411))
pad6 = body.newObject("PartDesign::Pad", "Pad005")
pad6.Profile = sketch10
pad6.Length = 1.5
pad6.Reversed = True

sketch11 = body.newObject("Sketcher::SketchObject", "Sketch010")
sketch11.AttachmentSupport = (doc.getObject("XZ_Plane"), [""])
sketch11.MapMode = "FlatFace"
sketch11.AttachmentOffset = App.Placement(Vector(0, 0, -2.7), App.Rotation())
sketch11.addGeometry(Part.Circle(Vector(8.453559, 5.714454, 0), Vector(0, 0, 1), 2), False)
sketch11.addConstraint(Sketcher.Constraint("Diameter", 0, 4.0))
sketch11.addConstraint(Sketcher.Constraint("DistanceX", -1, 1, 0, 3, 8.453559))
sketch11.addConstraint(Sketcher.Constraint("DistanceY", -1, 1, 0, 3, 5.714454))
pad7 = body.newObject("PartDesign::Pad", "Pad006")
pad7.Profile = sketch11
pad7.Length = 5.7
pad7.Reversed = True

sketch12 = body.newObject("Sketcher::SketchObject", "Sketch011")
sketch12.AttachmentSupport = (doc.getObject("XZ_Plane"), [""])
sketch12.MapMode = "FlatFace"
sketch12.AttachmentOffset = App.Placement(Vector(0, 0, -1.2), App.Rotation())
sketch12.addGeometry(Part.Circle(Vector(-5.169757, 18.391564, 0), Vector(0, 0, 1), 0.5), False)
sketch12.addGeometry(Part.Circle(Vector(-3.169757, 18.391564, 0), Vector(0, 0, 1), 0.5), False)
sketch12.addGeometry(Part.Circle(Vector(-1.169757, 18.391564, 0), Vector(0, 0, 1), 0.5), False)
sketch12.addGeometry(Part.Circle(Vector(0.830243, 18.391564, 0), Vector(0, 0, 1), 0.5), False)
sketch12.addGeometry(Part.Circle(Vector(2.830243, 18.391564, 0), Vector(0, 0, 1), 0.5), False)
sketch12.addGeometry(Part.Circle(Vector(4.830243, 18.391564, 0), Vector(0, 0, 1), 0.5), False)
sketch12.addGeometry(Part.Circle(Vector(6.830243, 18.391564, 0), Vector(0, 0, 1), 0.5), False)
sketch12.addConstraint(Sketcher.Constraint("Equal", 0, 1))
sketch12.addConstraint(Sketcher.Constraint("Equal", 1, 2))
sketch12.addConstraint(Sketcher.Constraint("Equal", 2, 3))
sketch12.addConstraint(Sketcher.Constraint("Equal", 3, 4))
sketch12.addConstraint(Sketcher.Constraint("Equal", 4, 5))
sketch12.addConstraint(Sketcher.Constraint("Equal", 5, 6))
sketch12.addConstraint(Sketcher.Constraint("Horizontal", 0, 3, 1, 3))
sketch12.addConstraint(Sketcher.Constraint("Horizontal", 1, 3, 2, 3))
sketch12.addConstraint(Sketcher.Constraint("Horizontal", 2, 3, 3, 3))
sketch12.addConstraint(Sketcher.Constraint("Horizontal", 3, 3, 4, 3))
sketch12.addConstraint(Sketcher.Constraint("Horizontal", 4, 3, 5, 3))
sketch12.addConstraint(Sketcher.Constraint("Horizontal", 5, 3, 6, 3))
sketch12.addConstraint(Sketcher.Constraint("Diameter", 0, 1.0))
sketch12.addConstraint(Sketcher.Constraint("DistanceX", 0, 3, 1, 3, 2.0))
sketch12.addConstraint(Sketcher.Constraint("DistanceX", 1, 3, 2, 3, 2.0))
sketch12.addConstraint(Sketcher.Constraint("DistanceX", 2, 3, 3, 3, 2.0))
sketch12.addConstraint(Sketcher.Constraint("DistanceX", 3, 3, 4, 3, 2.0))
sketch12.addConstraint(Sketcher.Constraint("DistanceX", 4, 3, 5, 3, 2.0))
sketch12.addConstraint(Sketcher.Constraint("DistanceX", 5, 3, 6, 3, 2.0))
sketch12.addConstraint(Sketcher.Constraint("DistanceX", 0, 3, -1, 1, 5.169757))
sketch12.addConstraint(Sketcher.Constraint("DistanceY", -1, 1, 0, 3, 18.391564))
pad8 = body.newObject("PartDesign::Pad", "Pad007")
pad8.Profile = sketch12
pad8.Length = 4
pad8.Reversed = True
doc.recompute()

fillet = body.newObject("PartDesign::Fillet", "Fillet")
fillet.Base = (pad8, edges_at(pad8, [
    (30, 0.6, 20),
    (-30, 0.6, 20),
    (-30, 0.6, -20),
    (30, 0.6, -20),
]))
fillet.Radius = 1
doc.recompute()

fillet2 = body.newObject("PartDesign::Fillet", "Fillet001")
fillet2.Base = (fillet, edges_at(fillet, [
    (10.222, 14.2, -11.033),
    (20.222, 14.2, -11.033),
    (-3.975, 14.2, -11.033),
    (6.025, 14.2, -11.033),
    (-9.065, 13.896, -11.196),
    (-19.065, 13.896, -11.196),
]))
fillet2.Radius = 0.5
doc.recompute()

fillet3 = body.newObject("PartDesign::Fillet", "Fillet002")
fillet3.Base = (fillet2, edges_at(fillet2, [(-15.896, 8.2, 3.563), (8.454, 8.4, 3.714)]))
fillet3.Radius = 0.25
doc.recompute()

fillet4 = body.newObject("PartDesign::Fillet", "Fillet003")
fillet4.Base = (fillet3, edges_at(fillet3, [
    (-5.17, 5.2, 18.892),
    (-3.17, 5.2, 18.892),
    (-1.17, 5.2, 18.892),
    (0.83, 5.2, 18.892),
    (2.83, 5.2, 18.892),
    (4.83, 5.2, 18.892),
    (6.83, 5.2, 18.892),
]))
fillet4.Radius = 0.125

sketch13 = body.newObject("Sketcher::SketchObject", "Sketch012")
sketch13.AttachmentSupport = (doc.getObject("XZ_Plane"), [""])
sketch13.MapMode = "FlatFace"
sketch13.AttachmentOffset = App.Placement(Vector(0, 0, -1.2), App.Rotation())
sketch13.addGeometry(Part.LineSegment(Vector(-6.059123, 0.694002, 0), Vector(-6.059123, 4.61852, 0)), False)
sketch13.addGeometry(Part.LineSegment(Vector(-6.059123, 4.61852, 0), Vector(-5.258142, 4.61852, 0)), False)
sketch13.addGeometry(Part.LineSegment(Vector(-5.258142, 4.61852, 0), Vector(-5.258142, 0.694002, 0)), False)
sketch13.addGeometry(Part.LineSegment(Vector(-5.258142, 0.694002, 0), Vector(-6.059123, 0.694002, 0)), False)
sketch13.addGeometry(Part.LineSegment(Vector(-2.05577, 0.694002, 0), Vector(-2.05577, 4.61852, 0)), False)
sketch13.addGeometry(Part.LineSegment(Vector(-2.05577, 4.61852, 0), Vector(-1.049432, 4.61852, 0)), False)
sketch13.addGeometry(Part.LineSegment(Vector(-1.049432, 4.61852, 0), Vector(-1.049432, 0.694002, 0)), False)
sketch13.addGeometry(Part.LineSegment(Vector(-1.049432, 0.694002, 0), Vector(-2.05577, 0.694002, 0)), False)
sketch13.addGeometry(Part.LineSegment(Vector(1.933359, 0.694002, 0), Vector(1.933359, 4.61852, 0)), False)
sketch13.addGeometry(Part.LineSegment(Vector(1.933359, 4.61852, 0), Vector(2.77027, 4.61852, 0)), False)
sketch13.addGeometry(Part.LineSegment(Vector(2.77027, 4.61852, 0), Vector(2.77027, 0.694002, 0)), False)
sketch13.addGeometry(Part.LineSegment(Vector(2.77027, 0.694002, 0), Vector(1.933359, 0.694002, 0)), False)
sketch13.addGeometry(Part.LineSegment(Vector(17.524573, 0.694002, 0), Vector(17.524573, 4.61852, 0)), False)
sketch13.addGeometry(Part.LineSegment(Vector(17.524573, 4.61852, 0), Vector(18.330295, 4.61852, 0)), False)
sketch13.addGeometry(Part.LineSegment(Vector(18.330295, 4.61852, 0), Vector(18.330295, 0.694002, 0)), False)
sketch13.addGeometry(Part.LineSegment(Vector(18.330295, 0.694002, 0), Vector(17.524573, 0.694002, 0)), False)
sketch13.addGeometry(Part.LineSegment(Vector(-22.464283, 0.694002, 0), Vector(-22.464283, 4.61852, 0)), False)
sketch13.addGeometry(Part.LineSegment(Vector(-22.464283, 4.61852, 0), Vector(-21.384085, 4.61852, 0)), False)
sketch13.addGeometry(Part.LineSegment(Vector(-21.384085, 4.61852, 0), Vector(-21.384085, 0.694002, 0)), False)
sketch13.addGeometry(Part.LineSegment(Vector(-21.384085, 0.694002, 0), Vector(-22.464283, 0.694002, 0)), False)
sketch13.addConstraint(Sketcher.Constraint("Coincident", 0, 2, 1, 1))
sketch13.addConstraint(Sketcher.Constraint("Coincident", 1, 2, 2, 1))
sketch13.addConstraint(Sketcher.Constraint("Coincident", 2, 2, 3, 1))
sketch13.addConstraint(Sketcher.Constraint("Coincident", 3, 2, 0, 1))
sketch13.addConstraint(Sketcher.Constraint("Coincident", 4, 2, 5, 1))
sketch13.addConstraint(Sketcher.Constraint("Coincident", 5, 2, 6, 1))
sketch13.addConstraint(Sketcher.Constraint("Coincident", 6, 2, 7, 1))
sketch13.addConstraint(Sketcher.Constraint("Coincident", 7, 2, 4, 1))
sketch13.addConstraint(Sketcher.Constraint("Coincident", 8, 2, 9, 1))
sketch13.addConstraint(Sketcher.Constraint("Coincident", 9, 2, 10, 1))
sketch13.addConstraint(Sketcher.Constraint("Coincident", 10, 2, 11, 1))
sketch13.addConstraint(Sketcher.Constraint("Coincident", 11, 2, 8, 1))
sketch13.addConstraint(Sketcher.Constraint("Coincident", 12, 2, 13, 1))
sketch13.addConstraint(Sketcher.Constraint("Coincident", 13, 2, 14, 1))
sketch13.addConstraint(Sketcher.Constraint("Coincident", 14, 2, 15, 1))
sketch13.addConstraint(Sketcher.Constraint("Coincident", 15, 2, 12, 1))
sketch13.addConstraint(Sketcher.Constraint("Coincident", 16, 2, 17, 1))
sketch13.addConstraint(Sketcher.Constraint("Coincident", 17, 2, 18, 1))
sketch13.addConstraint(Sketcher.Constraint("Coincident", 18, 2, 19, 1))
sketch13.addConstraint(Sketcher.Constraint("Coincident", 19, 2, 16, 1))
sketch13.addConstraint(Sketcher.Constraint("Vertical", 0))
sketch13.addConstraint(Sketcher.Constraint("Horizontal", 1))
sketch13.addConstraint(Sketcher.Constraint("Vertical", 2))
sketch13.addConstraint(Sketcher.Constraint("Horizontal", 3))
sketch13.addConstraint(Sketcher.Constraint("Vertical", 4))
sketch13.addConstraint(Sketcher.Constraint("Horizontal", 5))
sketch13.addConstraint(Sketcher.Constraint("Vertical", 6))
sketch13.addConstraint(Sketcher.Constraint("Horizontal", 7))
sketch13.addConstraint(Sketcher.Constraint("Vertical", 8))
sketch13.addConstraint(Sketcher.Constraint("Horizontal", 9))
sketch13.addConstraint(Sketcher.Constraint("Vertical", 10))
sketch13.addConstraint(Sketcher.Constraint("Horizontal", 11))
sketch13.addConstraint(Sketcher.Constraint("Vertical", 12))
sketch13.addConstraint(Sketcher.Constraint("Horizontal", 13))
sketch13.addConstraint(Sketcher.Constraint("Vertical", 14))
sketch13.addConstraint(Sketcher.Constraint("Horizontal", 15))
sketch13.addConstraint(Sketcher.Constraint("Vertical", 16))
sketch13.addConstraint(Sketcher.Constraint("Horizontal", 17))
sketch13.addConstraint(Sketcher.Constraint("Vertical", 18))
sketch13.addConstraint(Sketcher.Constraint("Horizontal", 19))
sketch13.addConstraint(Sketcher.Constraint("Horizontal", 1, 2, 4, 2))
sketch13.addConstraint(Sketcher.Constraint("Horizontal", 3, 2, 6, 2))
sketch13.addConstraint(Sketcher.Constraint("Horizontal", 5, 2, 8, 2))
sketch13.addConstraint(Sketcher.Constraint("Horizontal", 7, 2, 10, 2))
sketch13.addConstraint(Sketcher.Constraint("Horizontal", 9, 2, 12, 2))
sketch13.addConstraint(Sketcher.Constraint("Horizontal", 11, 2, 14, 2))
sketch13.addConstraint(Sketcher.Constraint("Horizontal", 13, 2, 16, 2))
sketch13.addConstraint(Sketcher.Constraint("Horizontal", 15, 2, 18, 2))
sketch13.addConstraint(Sketcher.Constraint("DistanceX", 17, 1, 17, 2, 1.080198))
sketch13.addConstraint(Sketcher.Constraint("DistanceY", -1, 1, 2, 2, 0.694002))
sketch13.addConstraint(Sketcher.Constraint("DistanceX", 1, 1, 1, 2, 0.800981))
sketch13.addConstraint(Sketcher.Constraint("DistanceX", 5, 1, 5, 2, 1.006338))
sketch13.addConstraint(Sketcher.Constraint("DistanceX", 9, 1, 9, 2, 0.836911))
sketch13.addConstraint(Sketcher.Constraint("DistanceY", 0, 1, 0, 2, 3.924519))
sketch13.addConstraint(Sketcher.Constraint("DistanceX", 1, 2, 8, 2, 7.191501))
sketch13.addConstraint(Sketcher.Constraint("DistanceX", 5, 2, 9, 2, 3.819702))
sketch13.addConstraint(Sketcher.Constraint("DistanceX", 13, 1, 13, 2, 0.805722))
sketch13.addConstraint(Sketcher.Constraint("DistanceX", 4, 2, -1, 1, 2.05577))
sketch13.addConstraint(Sketcher.Constraint("DistanceX", 16, 2, 0, 2, 16.40516))
sketch13.addConstraint(Sketcher.Constraint("DistanceX", -1, 1, 12, 2, 17.524573))
pad9 = body.newObject("PartDesign::Pad", "Pad008")
pad9.Profile = sketch13
pad9.Length = 1.5
pad9.Reversed = True
doc.recompute()

fillet5 = body.newObject("PartDesign::Fillet", "Fillet004")
fillet5.Base = (pad9, edges_at(pad9, [
    (17.525, 1.95, 0.694),
    (17.525, 1.95, 4.619),
    (18.33, 1.95, 4.619),
    (18.33, 1.95, 0.694),
    (17.525, 2.7, 2.656),
    (17.927, 2.7, 4.619),
    (18.33, 2.7, 2.656),
    (17.927, 2.7, 0.694),
]))
fillet5.Radius = 0.4
doc.recompute()

fillet6 = body.newObject("PartDesign::Fillet", "Fillet005")
fillet6.Base = (fillet5, edges_at(fillet5, [
    (-6.059, 1.95, 0.694),
    (-6.059, 1.95, 4.619),
    (-5.258, 1.95, 4.619),
    (-5.258, 1.95, 0.694),
    (-6.059, 2.7, 2.656),
    (-5.659, 2.7, 4.619),
    (-5.258, 2.7, 2.656),
    (-5.659, 2.7, 0.694),
    (-2.056, 1.95, 0.694),
    (-2.056, 1.95, 4.619),
    (-1.049, 1.95, 4.619),
    (-1.049, 1.95, 0.694),
    (-2.056, 2.7, 2.656),
    (-1.553, 2.7, 4.619),
    (-1.049, 2.7, 2.656),
    (-1.553, 2.7, 0.694),
    (1.933, 1.95, 0.694),
    (1.933, 1.95, 4.619),
    (2.77, 1.95, 4.619),
    (2.77, 1.95, 0.694),
    (1.933, 2.7, 2.656),
    (2.352, 2.7, 4.619),
    (2.77, 2.7, 2.656),
    (2.352, 2.7, 0.694),
    (-22.464, 1.95, 0.694),
    (-22.464, 1.95, 4.619),
    (-21.384, 1.95, 4.619),
    (-21.384, 1.95, 0.694),
    (-22.464, 2.7, 2.656),
    (-21.924, 2.7, 4.619),
    (-21.384, 2.7, 2.656),
    (-21.924, 2.7, 0.694),
]))
fillet6.Radius = 0.4

doc.recompute()
